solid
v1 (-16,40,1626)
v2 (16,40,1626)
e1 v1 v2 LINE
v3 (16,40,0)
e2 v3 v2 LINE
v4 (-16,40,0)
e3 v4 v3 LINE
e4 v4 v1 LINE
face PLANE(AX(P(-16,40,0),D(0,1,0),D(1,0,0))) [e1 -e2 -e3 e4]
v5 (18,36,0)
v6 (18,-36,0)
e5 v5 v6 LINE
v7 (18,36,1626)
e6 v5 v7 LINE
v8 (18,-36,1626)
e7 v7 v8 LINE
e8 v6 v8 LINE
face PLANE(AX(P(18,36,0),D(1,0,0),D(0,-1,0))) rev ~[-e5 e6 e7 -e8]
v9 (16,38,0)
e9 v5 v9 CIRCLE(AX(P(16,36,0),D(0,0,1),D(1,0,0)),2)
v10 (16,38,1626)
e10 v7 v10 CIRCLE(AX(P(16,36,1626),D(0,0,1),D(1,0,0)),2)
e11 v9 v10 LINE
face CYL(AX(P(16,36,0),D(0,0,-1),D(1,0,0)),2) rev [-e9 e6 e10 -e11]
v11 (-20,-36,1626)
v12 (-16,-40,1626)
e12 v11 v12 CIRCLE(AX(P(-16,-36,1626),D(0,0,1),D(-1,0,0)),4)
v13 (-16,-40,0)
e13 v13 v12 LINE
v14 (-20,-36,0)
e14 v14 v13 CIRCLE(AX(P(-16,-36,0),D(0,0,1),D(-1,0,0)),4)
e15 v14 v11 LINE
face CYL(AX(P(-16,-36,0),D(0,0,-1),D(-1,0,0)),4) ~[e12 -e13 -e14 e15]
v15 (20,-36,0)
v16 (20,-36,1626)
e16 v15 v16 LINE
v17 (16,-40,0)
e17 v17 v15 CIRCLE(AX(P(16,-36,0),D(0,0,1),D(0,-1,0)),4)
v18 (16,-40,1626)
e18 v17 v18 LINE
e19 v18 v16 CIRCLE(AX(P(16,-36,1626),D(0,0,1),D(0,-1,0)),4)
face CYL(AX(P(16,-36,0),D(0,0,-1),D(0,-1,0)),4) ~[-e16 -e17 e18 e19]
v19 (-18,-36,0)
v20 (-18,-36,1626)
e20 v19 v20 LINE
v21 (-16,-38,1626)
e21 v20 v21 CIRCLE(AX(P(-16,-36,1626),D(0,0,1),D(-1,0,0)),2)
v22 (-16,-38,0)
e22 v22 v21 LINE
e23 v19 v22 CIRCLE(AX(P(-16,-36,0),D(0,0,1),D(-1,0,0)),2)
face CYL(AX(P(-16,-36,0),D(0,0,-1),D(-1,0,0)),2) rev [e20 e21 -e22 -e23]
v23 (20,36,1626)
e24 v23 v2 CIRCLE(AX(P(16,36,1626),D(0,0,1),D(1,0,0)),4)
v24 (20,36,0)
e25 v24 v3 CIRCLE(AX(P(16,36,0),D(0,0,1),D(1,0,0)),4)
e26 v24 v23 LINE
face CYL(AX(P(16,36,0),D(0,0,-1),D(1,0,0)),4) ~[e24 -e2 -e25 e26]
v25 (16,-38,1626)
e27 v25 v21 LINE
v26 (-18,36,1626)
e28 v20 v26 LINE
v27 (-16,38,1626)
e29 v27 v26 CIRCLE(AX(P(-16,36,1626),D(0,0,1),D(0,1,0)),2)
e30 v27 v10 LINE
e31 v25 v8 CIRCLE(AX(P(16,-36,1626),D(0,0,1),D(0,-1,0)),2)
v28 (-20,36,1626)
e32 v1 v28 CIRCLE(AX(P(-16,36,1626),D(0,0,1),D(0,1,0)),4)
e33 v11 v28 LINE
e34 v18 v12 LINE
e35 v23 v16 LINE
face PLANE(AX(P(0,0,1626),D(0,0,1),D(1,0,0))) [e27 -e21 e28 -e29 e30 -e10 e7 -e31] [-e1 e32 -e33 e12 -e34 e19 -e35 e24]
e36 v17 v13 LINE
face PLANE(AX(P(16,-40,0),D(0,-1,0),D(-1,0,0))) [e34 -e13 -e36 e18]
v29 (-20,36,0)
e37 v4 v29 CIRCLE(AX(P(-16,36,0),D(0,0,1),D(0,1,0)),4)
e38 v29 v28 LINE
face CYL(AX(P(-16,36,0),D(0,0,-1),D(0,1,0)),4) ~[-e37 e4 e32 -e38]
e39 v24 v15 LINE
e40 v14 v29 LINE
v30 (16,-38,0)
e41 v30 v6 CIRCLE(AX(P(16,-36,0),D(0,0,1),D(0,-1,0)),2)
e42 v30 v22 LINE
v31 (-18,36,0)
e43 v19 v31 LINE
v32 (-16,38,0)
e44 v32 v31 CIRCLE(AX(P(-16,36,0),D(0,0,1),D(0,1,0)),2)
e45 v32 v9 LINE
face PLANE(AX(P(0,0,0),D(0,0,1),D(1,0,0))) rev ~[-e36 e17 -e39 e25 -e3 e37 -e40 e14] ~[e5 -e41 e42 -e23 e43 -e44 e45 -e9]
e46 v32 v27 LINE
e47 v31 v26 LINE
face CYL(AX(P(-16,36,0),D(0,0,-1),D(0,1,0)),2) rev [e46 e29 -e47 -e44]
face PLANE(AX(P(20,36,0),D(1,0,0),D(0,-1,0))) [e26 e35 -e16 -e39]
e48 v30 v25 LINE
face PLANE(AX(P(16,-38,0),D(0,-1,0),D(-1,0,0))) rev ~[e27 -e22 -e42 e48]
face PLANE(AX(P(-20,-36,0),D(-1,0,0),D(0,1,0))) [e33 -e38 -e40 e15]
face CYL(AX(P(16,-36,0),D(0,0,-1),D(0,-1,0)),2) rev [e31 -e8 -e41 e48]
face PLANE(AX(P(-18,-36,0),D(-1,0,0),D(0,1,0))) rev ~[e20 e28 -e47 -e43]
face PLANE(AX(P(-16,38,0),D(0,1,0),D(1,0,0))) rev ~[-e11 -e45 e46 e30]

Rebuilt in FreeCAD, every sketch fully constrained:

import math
import FreeCAD as App
import Part
import Sketcher
Q = App.Units.Quantity

doc = App.newDocument("Part")
params = doc.addObject("Spreadsheet::Sheet", "Params")
for row, (alias, value) in enumerate([
    ("sketch1_radius", "4 mm"),
    ("sketch1_radius2", "2 mm"),
    ("pad1_length", "1626 mm"),
], start=1):
    params.set(f"A{row}", alias)
    params.set(f"B{row}", "=" + value)
    params.setAlias(f"B{row}", alias)

body = doc.addObject("PartDesign::Body", "Body")

# Sketch on XY plane
sketch1 = body.newObject("Sketcher::SketchObject", "Sketch")
sketch1.AttachmentSupport = (doc.getObject("XY_Plane"), [""])
sketch1.MapMode = "FlatFace"
sketch1.addGeometry(Part.LineSegment(App.Vector(-20, 36, 0), App.Vector(-20, -36, 0)), False)
sketch1.addGeometry(Part.ArcOfCircle(Part.Circle(App.Vector(-16, -36, 0), App.Vector(0, 0, 1), 4), math.radians(180), math.radians(270)), False)
sketch1.addGeometry(Part.LineSegment(App.Vector(-16, -40, 0), App.Vector(16, -40, 0)), False)
sketch1.addGeometry(Part.ArcOfCircle(Part.Circle(App.Vector(16, -36, 0), App.Vector(0, 0, 1), 4), math.radians(-90), math.radians(0)), False)
sketch1.addGeometry(Part.LineSegment(App.Vector(20, -36, 0), App.Vector(20, 36, 0)), False)
sketch1.addGeometry(Part.ArcOfCircle(Part.Circle(App.Vector(16, 36, 0), App.Vector(0, 0, 1), 4), math.radians(0), math.radians(90)), False)
sketch1.addGeometry(Part.LineSegment(App.Vector(16, 40, 0), App.Vector(-16, 40, 0)), False)
sketch1.addGeometry(Part.ArcOfCircle(Part.Circle(App.Vector(-16, 36, 0), App.Vector(0, 0, 1), 4), math.radians(90), math.radians(180)), False)
sketch1.addGeometry(Part.ArcOfCircle(Part.Circle(App.Vector(-16, 36, 0), App.Vector(0, 0, 1), 2), math.radians(90), math.radians(180)), False)
sketch1.addGeometry(Part.LineSegment(App.Vector(-16, 38, 0), App.Vector(16, 38, 0)), False)
sketch1.addGeometry(Part.ArcOfCircle(Part.Circle(App.Vector(16, 36, 0), App.Vector(0, 0, 1), 2), math.radians(0), math.radians(90)), False)
sketch1.addGeometry(Part.LineSegment(App.Vector(18, 36, 0), App.Vector(18, -36, 0)), False)
sketch1.addGeometry(Part.ArcOfCircle(Part.Circle(App.Vector(16, -36, 0), App.Vector(0, 0, 1), 2), math.radians(-90), math.radians(0)), False)
sketch1.addGeometry(Part.LineSegment(App.Vector(16, -38, 0), App.Vector(-16, -38, 0)), False)
sketch1.addGeometry(Part.ArcOfCircle(Part.Circle(App.Vector(-16, -36, 0), App.Vector(0, 0, 1), 2), math.radians(180), math.radians(270)), False)
sketch1.addGeometry(Part.LineSegment(App.Vector(-18, -36, 0), App.Vector(-18, 36, 0)), False)
sketch1.addConstraint(Sketcher.Constraint("Tangent", 0, 2, 1, 1))
sketch1.addConstraint(Sketcher.Constraint("Tangent", 1, 2, 2, 1))
sketch1.addConstraint(Sketcher.Constraint("Tangent", 2, 2, 3, 1))
sketch1.addConstraint(Sketcher.Constraint("Tangent", 3, 2, 4, 1))
sketch1.addConstraint(Sketcher.Constraint("Tangent", 4, 2, 5, 1))
sketch1.addConstraint(Sketcher.Constraint("Tangent", 5, 2, 6, 1))
sketch1.addConstraint(Sketcher.Constraint("Tangent", 6, 2, 7, 1))
sketch1.addConstraint(Sketcher.Constraint("Tangent", 7, 2, 0, 1))
sketch1.addConstraint(Sketcher.Constraint("Tangent", 8, 1, 9, 1))
sketch1.addConstraint(Sketcher.Constraint("Tangent", 9, 2, 10, 2))
sketch1.addConstraint(Sketcher.Constraint("Tangent", 10, 1, 11, 1))
sketch1.addConstraint(Sketcher.Constraint("Tangent", 11, 2, 12, 2))
sketch1.addConstraint(Sketcher.Constraint("Tangent", 12, 1, 13, 1))
sketch1.addConstraint(Sketcher.Constraint("Tangent", 13, 2, 14, 2))
sketch1.addConstraint(Sketcher.Constraint("Tangent", 14, 1, 15, 1))
sketch1.addConstraint(Sketcher.Constraint("Tangent", 15, 2, 8, 2))
sketch1.addConstraint(Sketcher.Constraint("Vertical", 0))
sketch1.addConstraint(Sketcher.Constraint("Horizontal", 2))
sketch1.addConstraint(Sketcher.Constraint("Vertical", 4))
sketch1.addConstraint(Sketcher.Constraint("Horizontal", 6))
sketch1.addConstraint(Sketcher.Constraint("Horizontal", 9))
sketch1.addConstraint(Sketcher.Constraint("Vertical", 11))
sketch1.addConstraint(Sketcher.Constraint("Horizontal", 13))
sketch1.addConstraint(Sketcher.Constraint("Vertical", 15))
sketch1.addConstraint(Sketcher.Constraint("Coincident", 8, 3, 7, 3))
sketch1.addConstraint(Sketcher.Constraint("Coincident", 10, 3, 5, 3))
sketch1.addConstraint(Sketcher.Constraint("Coincident", 12, 3, 3, 3))
sketch1.addConstraint(Sketcher.Constraint("Equal", 1, 3))
sketch1.addConstraint(Sketcher.Constraint("Equal", 3, 5))
sketch1.addConstraint(Sketcher.Constraint("Equal", 5, 7))
sketch1.addConstraint(Sketcher.Constraint("Equal", 12, 14))
sketch1.addConstraint(Sketcher.Constraint("Symmetric", 1, 3, 5, 3, -1, 1))
sketch1.addConstraint(Sketcher.Constraint("Radius", 1, Q("4 mm")))
sketch1.addConstraint(Sketcher.Constraint("Radius", 8, Q("2 mm")))
sketch1.addConstraint(Sketcher.Constraint("DistanceX", 0, 2, -1, 1, Q("20 mm")))
sketch1.addConstraint(Sketcher.Constraint("DistanceY", 1, 2, -1, 1, Q("40 mm")))
sketch1.setExpression("Constraints[32]", "Params.sketch1_radius")
sketch1.setExpression("Constraints[33]", "Params.sketch1_radius2")
pad1 = body.newObject("PartDesign::Pad", "Pad")
pad1.Profile = sketch1
pad1.setExpression("Length", "Params.pad1_length")

doc.recompute()
